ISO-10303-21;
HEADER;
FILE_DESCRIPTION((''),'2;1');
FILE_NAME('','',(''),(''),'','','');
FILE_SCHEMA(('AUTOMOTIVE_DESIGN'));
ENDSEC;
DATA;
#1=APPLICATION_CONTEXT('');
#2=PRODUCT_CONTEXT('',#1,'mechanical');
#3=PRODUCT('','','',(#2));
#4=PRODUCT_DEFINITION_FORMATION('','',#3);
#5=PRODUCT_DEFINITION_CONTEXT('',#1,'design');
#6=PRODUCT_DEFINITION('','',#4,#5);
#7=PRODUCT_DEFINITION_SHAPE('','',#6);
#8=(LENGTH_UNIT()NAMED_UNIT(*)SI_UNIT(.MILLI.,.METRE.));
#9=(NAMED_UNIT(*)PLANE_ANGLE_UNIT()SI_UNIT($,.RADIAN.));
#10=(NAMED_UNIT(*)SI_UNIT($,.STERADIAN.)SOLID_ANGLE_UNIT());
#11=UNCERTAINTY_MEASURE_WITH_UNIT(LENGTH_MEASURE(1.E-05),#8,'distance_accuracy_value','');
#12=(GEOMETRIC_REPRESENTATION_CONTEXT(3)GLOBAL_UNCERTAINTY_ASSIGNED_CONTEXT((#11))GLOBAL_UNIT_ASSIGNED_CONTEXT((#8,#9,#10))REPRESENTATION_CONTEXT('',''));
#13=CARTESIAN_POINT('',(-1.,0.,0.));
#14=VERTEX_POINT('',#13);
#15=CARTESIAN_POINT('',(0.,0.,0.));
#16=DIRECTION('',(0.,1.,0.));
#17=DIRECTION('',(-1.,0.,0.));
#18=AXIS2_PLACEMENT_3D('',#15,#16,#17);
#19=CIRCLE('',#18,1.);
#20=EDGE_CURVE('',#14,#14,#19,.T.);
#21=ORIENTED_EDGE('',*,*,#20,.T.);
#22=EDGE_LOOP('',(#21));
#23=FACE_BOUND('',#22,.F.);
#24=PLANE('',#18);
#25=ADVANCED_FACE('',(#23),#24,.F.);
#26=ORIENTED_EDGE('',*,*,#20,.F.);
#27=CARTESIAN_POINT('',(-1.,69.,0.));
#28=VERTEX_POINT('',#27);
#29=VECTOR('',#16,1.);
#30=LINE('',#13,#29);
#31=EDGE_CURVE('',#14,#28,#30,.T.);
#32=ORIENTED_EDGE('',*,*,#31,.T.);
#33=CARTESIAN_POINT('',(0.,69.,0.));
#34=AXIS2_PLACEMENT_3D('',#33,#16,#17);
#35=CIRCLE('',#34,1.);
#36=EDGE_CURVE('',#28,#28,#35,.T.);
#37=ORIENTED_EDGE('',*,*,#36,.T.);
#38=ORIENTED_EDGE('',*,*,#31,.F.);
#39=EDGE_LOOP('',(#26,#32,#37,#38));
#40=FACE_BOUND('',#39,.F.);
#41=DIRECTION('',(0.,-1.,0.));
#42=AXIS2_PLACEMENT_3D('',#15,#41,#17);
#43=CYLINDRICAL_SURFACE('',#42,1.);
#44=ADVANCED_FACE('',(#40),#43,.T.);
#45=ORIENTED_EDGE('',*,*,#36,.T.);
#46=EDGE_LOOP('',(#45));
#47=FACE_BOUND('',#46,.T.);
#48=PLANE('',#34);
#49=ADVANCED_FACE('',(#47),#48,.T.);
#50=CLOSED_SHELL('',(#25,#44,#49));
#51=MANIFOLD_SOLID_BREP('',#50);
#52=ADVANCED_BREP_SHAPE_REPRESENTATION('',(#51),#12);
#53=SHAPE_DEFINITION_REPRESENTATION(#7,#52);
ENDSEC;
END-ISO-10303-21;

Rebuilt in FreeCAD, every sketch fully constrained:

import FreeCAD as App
import Part
import Sketcher

V = App.Vector

doc = App.newDocument("Part")
body = doc.addObject("PartDesign::Body", "Body")

sketch1 = body.newObject("Sketcher::SketchObject", "Sketch")
sketch1.AttachmentSupport = (doc.getObject("XZ_Plane"), [""])
sketch1.MapMode = "FlatFace"
sketch1.addGeometry(Part.Circle(V(0, 0, 0), V(0, 0, 1), 1), False)
sketch1.addConstraint([
    Sketcher.Constraint("Coincident", 0, 3, -1, 1),
    Sketcher.Constraint("Diameter", 0, 2.0),
])
pad1 = body.newObject("PartDesign::Pad", "Pad")
pad1.Profile = sketch1
pad1.Length = 69
pad1.Reversed = True

doc.recompute()
